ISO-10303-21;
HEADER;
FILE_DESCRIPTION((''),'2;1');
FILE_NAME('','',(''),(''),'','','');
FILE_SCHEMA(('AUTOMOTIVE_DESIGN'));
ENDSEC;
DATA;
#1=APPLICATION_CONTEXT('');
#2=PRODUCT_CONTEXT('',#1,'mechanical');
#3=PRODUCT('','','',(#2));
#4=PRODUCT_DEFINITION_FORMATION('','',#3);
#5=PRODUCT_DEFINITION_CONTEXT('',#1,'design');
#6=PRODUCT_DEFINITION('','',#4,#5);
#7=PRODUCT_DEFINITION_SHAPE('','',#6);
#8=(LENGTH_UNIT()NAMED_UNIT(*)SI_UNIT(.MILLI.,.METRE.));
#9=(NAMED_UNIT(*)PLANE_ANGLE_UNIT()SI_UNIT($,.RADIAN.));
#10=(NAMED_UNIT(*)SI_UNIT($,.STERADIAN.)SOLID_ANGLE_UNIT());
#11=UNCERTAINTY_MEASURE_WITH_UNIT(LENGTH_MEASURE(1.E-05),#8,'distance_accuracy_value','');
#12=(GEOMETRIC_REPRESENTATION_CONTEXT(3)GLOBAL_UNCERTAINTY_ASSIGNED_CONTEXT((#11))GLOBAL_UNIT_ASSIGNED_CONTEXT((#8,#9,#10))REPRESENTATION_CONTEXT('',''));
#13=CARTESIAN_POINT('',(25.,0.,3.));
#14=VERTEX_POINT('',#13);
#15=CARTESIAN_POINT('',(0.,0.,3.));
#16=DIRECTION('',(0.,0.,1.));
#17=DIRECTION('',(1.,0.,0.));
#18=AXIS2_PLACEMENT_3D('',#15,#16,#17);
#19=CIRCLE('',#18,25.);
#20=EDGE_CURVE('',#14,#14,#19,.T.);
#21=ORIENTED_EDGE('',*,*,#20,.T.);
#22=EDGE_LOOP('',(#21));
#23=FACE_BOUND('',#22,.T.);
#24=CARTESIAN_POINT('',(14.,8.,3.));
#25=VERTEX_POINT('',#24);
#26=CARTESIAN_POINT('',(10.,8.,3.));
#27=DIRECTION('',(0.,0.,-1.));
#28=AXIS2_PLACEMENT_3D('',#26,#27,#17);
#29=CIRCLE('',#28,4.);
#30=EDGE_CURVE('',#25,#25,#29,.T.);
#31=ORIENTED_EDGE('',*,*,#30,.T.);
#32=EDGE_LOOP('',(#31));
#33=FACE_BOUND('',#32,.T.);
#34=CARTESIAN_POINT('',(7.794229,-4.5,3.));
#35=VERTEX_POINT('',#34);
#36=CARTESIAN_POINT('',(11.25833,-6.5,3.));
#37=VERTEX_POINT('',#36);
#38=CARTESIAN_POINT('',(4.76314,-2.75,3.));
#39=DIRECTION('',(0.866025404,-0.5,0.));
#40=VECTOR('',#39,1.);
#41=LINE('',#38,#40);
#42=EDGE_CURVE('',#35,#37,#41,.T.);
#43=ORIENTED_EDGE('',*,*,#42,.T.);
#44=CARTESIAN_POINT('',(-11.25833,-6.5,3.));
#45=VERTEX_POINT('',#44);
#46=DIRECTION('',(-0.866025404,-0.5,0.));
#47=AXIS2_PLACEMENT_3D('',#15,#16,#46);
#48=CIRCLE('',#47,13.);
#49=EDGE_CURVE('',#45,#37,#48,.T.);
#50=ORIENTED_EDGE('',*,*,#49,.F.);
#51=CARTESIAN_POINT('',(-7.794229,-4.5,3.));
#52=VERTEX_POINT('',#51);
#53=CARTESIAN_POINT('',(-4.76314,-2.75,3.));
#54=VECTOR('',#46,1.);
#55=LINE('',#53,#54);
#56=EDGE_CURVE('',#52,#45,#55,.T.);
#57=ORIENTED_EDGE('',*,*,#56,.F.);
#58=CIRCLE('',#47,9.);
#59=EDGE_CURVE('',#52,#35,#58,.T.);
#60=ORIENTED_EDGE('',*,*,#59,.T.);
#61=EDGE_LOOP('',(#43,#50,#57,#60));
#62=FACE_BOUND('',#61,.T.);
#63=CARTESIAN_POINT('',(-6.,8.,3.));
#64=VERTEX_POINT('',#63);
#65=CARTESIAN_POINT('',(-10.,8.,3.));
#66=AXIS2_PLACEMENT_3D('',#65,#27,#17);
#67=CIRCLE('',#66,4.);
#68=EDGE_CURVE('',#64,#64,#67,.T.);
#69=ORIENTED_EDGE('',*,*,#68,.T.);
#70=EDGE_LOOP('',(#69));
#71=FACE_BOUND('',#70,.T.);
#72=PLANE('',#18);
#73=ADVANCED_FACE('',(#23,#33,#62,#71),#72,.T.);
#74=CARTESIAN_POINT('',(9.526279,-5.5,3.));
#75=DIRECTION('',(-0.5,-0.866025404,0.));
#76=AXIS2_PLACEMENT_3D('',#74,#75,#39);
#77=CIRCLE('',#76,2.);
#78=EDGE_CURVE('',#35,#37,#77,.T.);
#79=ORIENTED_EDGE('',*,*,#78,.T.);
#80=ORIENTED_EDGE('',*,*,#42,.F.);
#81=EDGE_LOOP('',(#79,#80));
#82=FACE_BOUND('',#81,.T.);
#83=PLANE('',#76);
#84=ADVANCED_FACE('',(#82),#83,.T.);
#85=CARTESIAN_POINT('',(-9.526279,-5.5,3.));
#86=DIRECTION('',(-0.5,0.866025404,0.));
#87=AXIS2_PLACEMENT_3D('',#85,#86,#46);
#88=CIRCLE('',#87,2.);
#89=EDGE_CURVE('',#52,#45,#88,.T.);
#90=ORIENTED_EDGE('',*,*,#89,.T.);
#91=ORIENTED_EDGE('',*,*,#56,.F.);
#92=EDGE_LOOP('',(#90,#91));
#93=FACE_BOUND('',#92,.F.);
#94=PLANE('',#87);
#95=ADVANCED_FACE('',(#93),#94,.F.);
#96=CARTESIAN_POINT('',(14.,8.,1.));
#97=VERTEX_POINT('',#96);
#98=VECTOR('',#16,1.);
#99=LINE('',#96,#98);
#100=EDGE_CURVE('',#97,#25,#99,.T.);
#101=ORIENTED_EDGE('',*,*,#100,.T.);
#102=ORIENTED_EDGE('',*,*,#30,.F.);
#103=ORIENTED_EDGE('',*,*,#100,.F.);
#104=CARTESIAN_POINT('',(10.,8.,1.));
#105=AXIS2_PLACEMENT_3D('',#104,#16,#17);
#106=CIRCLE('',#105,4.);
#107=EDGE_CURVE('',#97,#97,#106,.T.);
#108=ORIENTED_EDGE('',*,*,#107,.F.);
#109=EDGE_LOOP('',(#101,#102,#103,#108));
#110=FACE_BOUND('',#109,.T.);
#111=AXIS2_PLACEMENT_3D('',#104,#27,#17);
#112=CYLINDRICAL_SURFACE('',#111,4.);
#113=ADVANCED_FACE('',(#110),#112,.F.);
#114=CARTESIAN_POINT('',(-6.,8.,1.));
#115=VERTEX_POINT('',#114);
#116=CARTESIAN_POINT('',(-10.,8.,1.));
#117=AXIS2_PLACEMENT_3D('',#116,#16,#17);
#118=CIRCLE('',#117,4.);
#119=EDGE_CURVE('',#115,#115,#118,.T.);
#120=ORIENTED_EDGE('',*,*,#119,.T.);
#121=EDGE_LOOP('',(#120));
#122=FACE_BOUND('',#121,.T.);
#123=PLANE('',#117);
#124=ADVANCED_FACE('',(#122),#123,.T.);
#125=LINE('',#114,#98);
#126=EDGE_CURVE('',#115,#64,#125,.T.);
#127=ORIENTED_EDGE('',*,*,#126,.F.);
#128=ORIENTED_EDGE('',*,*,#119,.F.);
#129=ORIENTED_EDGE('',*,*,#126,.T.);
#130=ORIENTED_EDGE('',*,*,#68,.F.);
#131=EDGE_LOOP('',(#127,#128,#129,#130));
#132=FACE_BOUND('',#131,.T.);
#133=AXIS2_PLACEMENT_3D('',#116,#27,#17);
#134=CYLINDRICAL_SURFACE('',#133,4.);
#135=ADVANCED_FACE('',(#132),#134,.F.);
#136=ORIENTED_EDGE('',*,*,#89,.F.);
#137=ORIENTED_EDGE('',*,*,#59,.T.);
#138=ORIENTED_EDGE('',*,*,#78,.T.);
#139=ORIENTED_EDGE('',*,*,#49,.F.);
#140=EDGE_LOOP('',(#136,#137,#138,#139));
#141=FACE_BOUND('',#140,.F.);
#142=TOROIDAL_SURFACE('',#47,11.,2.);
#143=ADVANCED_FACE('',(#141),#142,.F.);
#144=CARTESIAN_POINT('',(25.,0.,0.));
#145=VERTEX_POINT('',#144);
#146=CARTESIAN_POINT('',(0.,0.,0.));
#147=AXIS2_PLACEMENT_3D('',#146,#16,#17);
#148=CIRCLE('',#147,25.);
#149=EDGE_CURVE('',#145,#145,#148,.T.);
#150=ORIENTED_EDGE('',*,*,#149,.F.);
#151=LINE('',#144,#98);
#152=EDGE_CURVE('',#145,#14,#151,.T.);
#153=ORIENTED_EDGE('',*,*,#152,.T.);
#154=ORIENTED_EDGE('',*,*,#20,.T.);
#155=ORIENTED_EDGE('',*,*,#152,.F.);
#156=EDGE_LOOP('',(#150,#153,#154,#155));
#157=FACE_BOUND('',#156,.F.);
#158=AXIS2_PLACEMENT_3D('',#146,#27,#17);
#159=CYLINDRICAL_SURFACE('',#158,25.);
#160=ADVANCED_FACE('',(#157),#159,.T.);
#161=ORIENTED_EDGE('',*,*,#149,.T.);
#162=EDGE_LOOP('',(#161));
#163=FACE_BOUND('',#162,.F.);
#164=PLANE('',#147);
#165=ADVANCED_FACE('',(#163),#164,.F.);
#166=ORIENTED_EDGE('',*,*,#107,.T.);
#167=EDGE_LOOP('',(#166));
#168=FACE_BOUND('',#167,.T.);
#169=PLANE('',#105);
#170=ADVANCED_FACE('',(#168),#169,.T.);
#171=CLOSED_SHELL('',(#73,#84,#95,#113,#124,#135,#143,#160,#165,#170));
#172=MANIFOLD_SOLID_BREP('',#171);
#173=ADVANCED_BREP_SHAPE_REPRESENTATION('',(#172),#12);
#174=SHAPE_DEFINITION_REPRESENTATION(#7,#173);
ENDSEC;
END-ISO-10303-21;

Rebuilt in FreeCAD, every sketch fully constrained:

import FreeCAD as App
import Part
import Sketcher
Q = App.Units.Quantity

doc = App.newDocument("Part")
params = doc.addObject("Spreadsheet::Sheet", "Params")
for row, (alias, value) in enumerate([
    ("sketch1_diameter", "4 mm"),
    ("revolution_angle", "120 deg"),
    ("sketch2_diameter", "8 mm"),
    ("pad1_length", "10 mm"),
    ("sketch3_diameter", "8 mm"),
    ("pad2_length", "10 mm"),
    ("sketch4_diameter", "50 mm"),
    ("pad3_length", "3 mm"),
], start=1):
    params.set(f"A{row}", alias)
    params.set(f"B{row}", "=" + value)
    params.setAlias(f"B{row}", alias)

body = doc.addObject("PartDesign::Body", "Body")

# Sketch on XZ plane
sketch1 = body.newObject("Sketcher::SketchObject", "Sketch")
sketch1.AttachmentSupport = (doc.getObject("XZ_Plane"), [""])
sketch1.MapMode = "FlatFace"
sketch1.addGeometry(Part.Circle(App.Vector(11, 0, 0), App.Vector(0, 0, 1), 2), False)
sketch1.addConstraint([
    Sketcher.Constraint("PointOnObject", 0, 3, -1),
    Sketcher.Constraint("Diameter", 0, Q("4 mm")),
    Sketcher.Constraint("DistanceX", -1, 1, 0, 3, Q("11 mm")),
])
sketch1.setExpression("Constraints[1]", "Params.sketch1_diameter")
revolution = body.newObject("PartDesign::Revolution", "Revolution")
revolution.Profile = sketch1
revolution.ReferenceAxis = (sketch1, ["V_Axis"])
revolution.setExpression("Angle", "Params.revolution_angle")
body2 = doc.addObject("PartDesign::Body", "Body001")
doc.recompute()

body.Placement = App.Placement(App.Vector(0, 0, 3), App.Rotation(App.Vector(0, 0, 1), 210))
boolean = body2.newObject("PartDesign::Boolean", "Boolean")
boolean.Type = "Fuse"
boolean.addObjects([body])
body3 = doc.addObject("PartDesign::Body", "Body002")

# Sketch on XY plane
sketch2 = body3.newObject("Sketcher::SketchObject", "Sketch001")
sketch2.AttachmentSupport = (doc.getObject("XY_Plane002"), [""])
sketch2.MapMode = "FlatFace"
sketch2.addGeometry(Part.Circle(App.Vector(10, 8, 0), App.Vector(0, 0, 1), 4), False)
sketch2.addConstraint([
    Sketcher.Constraint("Diameter", 0, Q("8 mm")),
    Sketcher.Constraint("DistanceX", -1, 1, 0, 3, Q("10 mm")),
    Sketcher.Constraint("DistanceY", -1, 1, 0, 3, Q("8 mm")),
])
sketch2.setExpression("Constraints[0]", "Params.sketch2_diameter")
pad1 = body3.newObject("PartDesign::Pad", "Pad")
pad1.Profile = sketch2
pad1.setExpression("Length", "Params.pad1_length")
body4 = doc.addObject("PartDesign::Body", "Body003")
body4.AllowCompound = True

# Sketch on XY plane
sketch3 = body4.newObject("Sketcher::SketchObject", "Sketch002")
sketch3.AttachmentSupport = (doc.getObject("XY_Plane003"), [""])
sketch3.MapMode = "FlatFace"
sketch3.addGeometry(Part.Circle(App.Vector(-10, 8, 0), App.Vector(0, 0, 1), 4), False)
sketch3.addConstraint([
    Sketcher.Constraint("Diameter", 0, Q("8 mm")),
    Sketcher.Constraint("DistanceX", 0, 3, -1, 1, Q("10 mm")),
    Sketcher.Constraint("DistanceY", -1, 1, 0, 3, Q("8 mm")),
])
sketch3.setExpression("Constraints[0]", "Params.sketch3_diameter")
pad2 = body4.newObject("PartDesign::Pad", "Pad001")
pad2.Profile = sketch3
pad2.setExpression("Length", "Params.pad2_length")
doc.recompute()

boolean2 = body4.newObject("PartDesign::Boolean", "Boolean001")
boolean2.Type = "Fuse"
boolean2.addObjects([body3])
body5 = doc.addObject("PartDesign::Body", "Body004")
body5.AllowCompound = True
doc.recompute()

body4.Placement = App.Placement(App.Vector(0, 0, 1), App.Rotation(App.Vector(0, 0, 1), 0))
boolean3 = body5.newObject("PartDesign::Boolean", "Boolean002")
boolean3.Type = "Fuse"
boolean3.addObjects([body4])
body6 = doc.addObject("PartDesign::Body", "Body005")

# Sketch on XY plane
sketch4 = body6.newObject("Sketcher::SketchObject", "Sketch003")
sketch4.AttachmentSupport = (doc.getObject("XY_Plane005"), [""])
sketch4.MapMode = "FlatFace"
sketch4.addGeometry(Part.Circle(App.Vector(0, 0, 0), App.Vector(0, 0, 1), 25), False)
sketch4.addConstraint([
    Sketcher.Constraint("Coincident", 0, 3, -1, 1),
    Sketcher.Constraint("Diameter", 0, Q("50 mm")),
])
sketch4.setExpression("Constraints[1]", "Params.sketch4_diameter")
pad3 = body6.newObject("PartDesign::Pad", "Pad002")
pad3.Profile = sketch4
pad3.setExpression("Length", "Params.pad3_length")
doc.recompute()

boolean4 = body6.newObject("PartDesign::Boolean", "Boolean003")
boolean4.Type = "Cut"
boolean4.addObjects([body5])
doc.recompute()

boolean5 = body6.newObject("PartDesign::Boolean", "Boolean004")
boolean5.Type = "Cut"
boolean5.addObjects([body2])

doc.recompute()
